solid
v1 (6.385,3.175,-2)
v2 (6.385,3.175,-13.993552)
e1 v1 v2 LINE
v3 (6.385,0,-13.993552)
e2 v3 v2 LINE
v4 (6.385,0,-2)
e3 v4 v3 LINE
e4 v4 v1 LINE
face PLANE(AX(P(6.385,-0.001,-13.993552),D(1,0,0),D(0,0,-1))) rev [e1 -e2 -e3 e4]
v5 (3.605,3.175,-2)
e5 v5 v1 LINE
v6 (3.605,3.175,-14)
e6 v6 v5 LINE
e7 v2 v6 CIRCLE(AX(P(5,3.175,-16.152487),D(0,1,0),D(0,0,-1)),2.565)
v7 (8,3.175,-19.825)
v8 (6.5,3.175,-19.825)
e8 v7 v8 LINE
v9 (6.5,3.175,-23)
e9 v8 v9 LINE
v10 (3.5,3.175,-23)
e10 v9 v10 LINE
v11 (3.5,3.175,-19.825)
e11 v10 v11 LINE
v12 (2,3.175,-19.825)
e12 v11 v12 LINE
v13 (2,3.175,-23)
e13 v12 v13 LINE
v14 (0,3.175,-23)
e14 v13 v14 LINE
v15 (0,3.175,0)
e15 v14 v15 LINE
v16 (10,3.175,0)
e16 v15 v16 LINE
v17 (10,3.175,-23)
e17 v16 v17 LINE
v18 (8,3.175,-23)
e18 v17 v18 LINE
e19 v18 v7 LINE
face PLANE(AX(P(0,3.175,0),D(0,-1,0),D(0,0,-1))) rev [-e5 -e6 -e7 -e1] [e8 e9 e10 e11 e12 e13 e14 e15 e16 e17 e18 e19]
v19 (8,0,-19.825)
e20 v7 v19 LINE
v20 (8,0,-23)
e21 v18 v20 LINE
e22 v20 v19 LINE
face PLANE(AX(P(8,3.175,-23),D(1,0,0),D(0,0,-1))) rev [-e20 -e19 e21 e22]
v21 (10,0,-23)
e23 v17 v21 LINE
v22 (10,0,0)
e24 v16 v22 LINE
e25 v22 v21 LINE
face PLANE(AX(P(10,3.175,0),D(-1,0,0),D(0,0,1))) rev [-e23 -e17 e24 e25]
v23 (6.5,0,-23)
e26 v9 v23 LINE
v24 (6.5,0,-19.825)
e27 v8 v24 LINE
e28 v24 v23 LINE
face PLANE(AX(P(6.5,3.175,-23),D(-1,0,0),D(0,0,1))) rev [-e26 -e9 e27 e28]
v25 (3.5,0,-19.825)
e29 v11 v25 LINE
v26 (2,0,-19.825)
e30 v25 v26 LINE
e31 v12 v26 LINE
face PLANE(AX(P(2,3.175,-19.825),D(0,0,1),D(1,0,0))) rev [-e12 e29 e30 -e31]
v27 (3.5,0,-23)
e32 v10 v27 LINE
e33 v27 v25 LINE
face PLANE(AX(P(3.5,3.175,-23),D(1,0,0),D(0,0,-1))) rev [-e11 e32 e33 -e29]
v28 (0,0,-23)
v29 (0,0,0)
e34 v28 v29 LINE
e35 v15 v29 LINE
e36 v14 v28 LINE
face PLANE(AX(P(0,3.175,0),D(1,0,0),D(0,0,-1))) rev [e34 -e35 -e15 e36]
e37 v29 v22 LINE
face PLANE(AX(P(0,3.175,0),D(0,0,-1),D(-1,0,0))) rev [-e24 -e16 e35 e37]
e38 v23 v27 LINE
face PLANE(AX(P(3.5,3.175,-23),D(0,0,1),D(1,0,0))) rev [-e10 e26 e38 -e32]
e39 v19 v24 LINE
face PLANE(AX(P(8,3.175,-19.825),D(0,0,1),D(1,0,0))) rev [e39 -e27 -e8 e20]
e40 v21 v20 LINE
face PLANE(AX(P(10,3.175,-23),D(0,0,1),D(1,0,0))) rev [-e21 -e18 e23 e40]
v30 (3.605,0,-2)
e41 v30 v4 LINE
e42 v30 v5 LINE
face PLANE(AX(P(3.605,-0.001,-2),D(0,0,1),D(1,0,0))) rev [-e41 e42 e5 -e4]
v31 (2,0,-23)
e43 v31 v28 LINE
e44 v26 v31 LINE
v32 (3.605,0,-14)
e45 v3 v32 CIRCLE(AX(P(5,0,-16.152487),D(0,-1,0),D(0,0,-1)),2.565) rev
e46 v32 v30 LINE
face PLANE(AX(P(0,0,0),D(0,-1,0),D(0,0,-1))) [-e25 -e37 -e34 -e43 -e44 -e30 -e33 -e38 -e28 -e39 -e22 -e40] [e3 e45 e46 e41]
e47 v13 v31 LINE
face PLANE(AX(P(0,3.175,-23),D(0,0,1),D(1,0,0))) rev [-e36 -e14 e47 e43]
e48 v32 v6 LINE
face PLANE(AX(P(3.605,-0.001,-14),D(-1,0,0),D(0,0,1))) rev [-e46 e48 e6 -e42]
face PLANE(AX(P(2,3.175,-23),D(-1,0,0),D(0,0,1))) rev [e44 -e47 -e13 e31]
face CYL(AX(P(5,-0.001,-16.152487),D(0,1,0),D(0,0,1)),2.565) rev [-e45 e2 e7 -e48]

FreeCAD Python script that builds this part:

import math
import FreeCAD as App
import Part
import Sketcher

V = App.Vector
Q = App.Units.Quantity


def add_polygon(sketch, points):
    """Adds a closed chain of lines whose ends are joined by coincident constraints."""
    first, n = sketch.GeometryCount, len(points)
    for a, b in zip(points, points[1:] + points[:1]):
        sketch.addGeometry(Part.LineSegment(App.Vector(*a, 0), App.Vector(*b, 0)), False)
    for i in range(n):
        sketch.addConstraint(Sketcher.Constraint("Coincident", first + i, 2, first + (i + 1) % n, 1))

doc = App.newDocument("Part")
body = doc.addObject("PartDesign::Body", "Body")

sketch1 = body.newObject("Sketcher::SketchObject", "Sketch")
sketch1.AttachmentSupport = (doc.getObject("XZ_Plane"), [""])
sketch1.MapMode = "FlatFace"
add_polygon(sketch1, [(0, 0), (10, 0), (10, -23), (8, -23), (8, -19.8), (6.5, -19.8), (6.5, -23), (3.5, -23), (3.5, -19.8), (2, -19.8), (2, -23), (0, -23)])
sketch1.addConstraint([
    Sketcher.Constraint("Horizontal", 0),
    Sketcher.Constraint("Vertical", 1),
    Sketcher.Constraint("Horizontal", 2),
    Sketcher.Constraint("Vertical", 3),
    Sketcher.Constraint("Horizontal", 4),
    Sketcher.Constraint("Vertical", 5),
    Sketcher.Constraint("Horizontal", 6),
    Sketcher.Constraint("Vertical", 7),
    Sketcher.Constraint("Horizontal", 8),
    Sketcher.Constraint("Vertical", 9),
    Sketcher.Constraint("Horizontal", 10),
    Sketcher.Constraint("Vertical", 11),
    Sketcher.Constraint("Coincident", 11, 2, -1, 1),
    Sketcher.Constraint("Horizontal", 2, 2, 5, 2),
    Sketcher.Constraint("Horizontal", 4, 2, 7, 2),
    Sketcher.Constraint("Horizontal", 6, 2, 9, 2),
    Sketcher.Constraint("Equal", 4, 8),
    Sketcher.Constraint("Equal", 2, 10),
    Sketcher.Constraint("DistanceX", 0, 1, 0, 2, Q("10 mm")),
    Sketcher.Constraint("DistanceX", 2, 2, 2, 1, Q("2 mm")),
    Sketcher.Constraint("DistanceX", 6, 2, 6, 1, Q("3 mm")),
    Sketcher.Constraint("DistanceY", 1, 2, 1, 1, Q("23 mm")),
    Sketcher.Constraint("DistanceY", 3, 1, 3, 2, Q("3.175 mm")),
])
pad1 = body.newObject("PartDesign::Pad", "Pad")
pad1.Profile = sketch1
pad1.Length = 3.175
pad1.Reversed = True

sketch2 = body.newObject("Sketcher::SketchObject", "Sketch001")
sketch2.AttachmentSupport = (doc.getObject("XZ_Plane"), [""])
sketch2.MapMode = "FlatFace"
sketch2.AttachmentOffset = App.Placement(V(0, 0, -3.175), App.Rotation())
sketch2.addGeometry([
    Part.LineSegment(V(3.6, -2, 0), V(6.4, -2, 0)),
    Part.LineSegment(V(6.4, -2, 0), V(6.4, -14, 0)),
    Part.ArcOfCircle(Part.Circle(V(5, -16.2, 0), V(0, 0, 1), 2.6), math.radians(123), math.radians(417)),
    Part.LineSegment(V(3.6, -14, 0), V(3.6, -2, 0)),
], False)
sketch2.addConstraint([
    Sketcher.Constraint("Coincident", 0, 2, 1, 1),
    Sketcher.Constraint("Coincident", 1, 2, 2, 2),
    Sketcher.Constraint("Coincident", 2, 1, 3, 1),
    Sketcher.Constraint("Coincident", 3, 2, 0, 1),
    Sketcher.Constraint("Horizontal", 0),
    Sketcher.Constraint("Vertical", 1),
    Sketcher.Constraint("Vertical", 3),
    Sketcher.Constraint("DistanceY", 3, 1, 3, 2, Q("12 mm")),
    Sketcher.Constraint("DistanceX", -1, 1, 2, 3, Q("5 mm")),
    Sketcher.Constraint("DistanceY", 0, 2, -1, 1, Q("2 mm")),
    Sketcher.Constraint("Radius", 2, Q("2.565 mm")),
    Sketcher.Constraint("DistanceX", 0, 1, 0, 2, Q("2.78 mm")),
    Sketcher.Constraint("DistanceX", -1, 1, 0, 2, Q("6.385 mm")),
])
pocket1 = body.newObject("PartDesign::Pocket", "Pocket")
pocket1.Profile = sketch2
pocket1.Type = "UpToFirst"
pocket1.Reversed = True

doc.recompute()
